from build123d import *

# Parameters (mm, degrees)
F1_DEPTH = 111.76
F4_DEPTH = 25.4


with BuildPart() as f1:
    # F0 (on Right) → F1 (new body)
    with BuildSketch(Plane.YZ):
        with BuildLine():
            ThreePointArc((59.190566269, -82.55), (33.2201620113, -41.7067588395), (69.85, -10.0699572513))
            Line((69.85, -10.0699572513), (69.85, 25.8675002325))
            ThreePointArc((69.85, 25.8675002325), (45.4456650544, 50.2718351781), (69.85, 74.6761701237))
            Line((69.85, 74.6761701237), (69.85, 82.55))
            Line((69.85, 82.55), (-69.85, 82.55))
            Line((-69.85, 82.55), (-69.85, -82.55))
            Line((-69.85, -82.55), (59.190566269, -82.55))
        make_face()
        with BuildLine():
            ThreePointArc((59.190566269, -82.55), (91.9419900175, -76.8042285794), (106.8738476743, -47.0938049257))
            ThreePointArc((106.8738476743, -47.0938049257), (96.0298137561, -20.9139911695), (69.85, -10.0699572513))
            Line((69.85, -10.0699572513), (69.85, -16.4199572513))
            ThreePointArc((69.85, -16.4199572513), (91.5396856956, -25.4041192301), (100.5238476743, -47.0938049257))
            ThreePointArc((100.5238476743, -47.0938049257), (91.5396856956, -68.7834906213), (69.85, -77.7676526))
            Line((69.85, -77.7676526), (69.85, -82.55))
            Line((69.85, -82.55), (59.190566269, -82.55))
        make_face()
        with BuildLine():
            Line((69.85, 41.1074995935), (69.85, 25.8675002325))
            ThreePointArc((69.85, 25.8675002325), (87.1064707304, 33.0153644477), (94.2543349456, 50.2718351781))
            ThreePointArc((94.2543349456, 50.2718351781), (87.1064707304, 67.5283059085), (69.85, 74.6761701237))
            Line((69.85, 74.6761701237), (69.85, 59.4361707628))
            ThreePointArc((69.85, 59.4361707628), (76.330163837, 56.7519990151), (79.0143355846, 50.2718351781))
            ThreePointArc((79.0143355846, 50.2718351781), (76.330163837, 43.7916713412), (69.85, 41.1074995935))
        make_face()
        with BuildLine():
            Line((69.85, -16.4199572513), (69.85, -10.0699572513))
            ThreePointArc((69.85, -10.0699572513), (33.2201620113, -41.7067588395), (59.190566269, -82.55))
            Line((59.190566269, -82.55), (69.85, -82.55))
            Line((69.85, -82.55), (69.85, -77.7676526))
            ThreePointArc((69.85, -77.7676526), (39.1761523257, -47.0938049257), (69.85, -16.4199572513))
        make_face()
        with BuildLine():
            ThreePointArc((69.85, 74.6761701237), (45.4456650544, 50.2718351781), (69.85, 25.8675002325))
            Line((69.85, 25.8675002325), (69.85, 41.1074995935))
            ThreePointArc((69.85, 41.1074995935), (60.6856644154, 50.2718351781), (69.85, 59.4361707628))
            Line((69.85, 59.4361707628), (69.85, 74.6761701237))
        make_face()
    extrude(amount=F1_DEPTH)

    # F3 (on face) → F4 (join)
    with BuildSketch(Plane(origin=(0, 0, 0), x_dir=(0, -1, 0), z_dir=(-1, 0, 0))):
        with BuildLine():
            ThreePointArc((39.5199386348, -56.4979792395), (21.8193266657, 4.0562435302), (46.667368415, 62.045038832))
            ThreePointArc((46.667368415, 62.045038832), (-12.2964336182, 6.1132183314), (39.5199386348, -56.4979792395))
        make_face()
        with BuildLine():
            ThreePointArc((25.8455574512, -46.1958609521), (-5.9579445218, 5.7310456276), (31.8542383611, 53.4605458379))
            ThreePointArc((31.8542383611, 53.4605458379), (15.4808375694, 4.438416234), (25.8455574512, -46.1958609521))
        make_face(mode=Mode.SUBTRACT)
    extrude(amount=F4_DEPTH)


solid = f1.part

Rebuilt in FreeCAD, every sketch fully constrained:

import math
import FreeCAD as App
import Part
import Sketcher
from FreeCAD import Vector
Q = App.Units.Quantity

doc = App.newDocument("Part")
body = doc.addObject("PartDesign::Body", "Body")

sketch1 = doc.addObject("Sketcher::SketchObject", "Sketch")
body.addObject(sketch1)
sketch1.AttachmentSupport = (doc.YZ_Plane, [""])
sketch1.MapMode = "FlatFace"
sketch1.addGeometry([
    Part.LineSegment(Vector(70, -10, 0), Vector(70, 26, 0)),
    Part.ArcOfCircle(Part.Circle(Vector(70, 50, 0), Vector(0, 0, 1), 24), math.radians(-90), math.radians(0)),
    Part.ArcOfCircle(Part.Circle(Vector(70, 50, 0), Vector(0, 0, 1), 24), math.radians(0), math.radians(90)),
    Part.LineSegment(Vector(70, 75, 0), Vector(70, 83, 0)),
    Part.LineSegment(Vector(70, 83, 0), Vector(-70, 83, 0)),
    Part.LineSegment(Vector(-70, 83, 0), Vector(-70, -83, 0)),
    Part.LineSegment(Vector(-70, -83, 0), Vector(59, -83, 0)),
    Part.ArcOfCircle(Part.Circle(Vector(70, -47, 0), Vector(0, 0, 1), 37), math.radians(-107), math.radians(0)),
    Part.ArcOfCircle(Part.Circle(Vector(70, -47, 0), Vector(0, 0, 1), 37), math.radians(0), math.radians(90)),
    Part.ArcOfCircle(Part.Circle(Vector(70, -47, 0), Vector(0, 0, 1), 31), math.radians(0), math.radians(90)),
    Part.ArcOfCircle(Part.Circle(Vector(70, -47, 0), Vector(0, 0, 1), 31), math.radians(90), math.radians(360)),
    Part.ArcOfCircle(Part.Circle(Vector(70, 50, 0), Vector(0, 0, 1), 9), math.radians(90), math.radians(270)),
    Part.ArcOfCircle(Part.Circle(Vector(70, 50, 0), Vector(0, 0, 1), 9), math.radians(0), math.radians(90)),
    Part.ArcOfCircle(Part.Circle(Vector(70, 50, 0), Vector(0, 0, 1), 9), math.radians(-90), math.radians(0)),
], False)
sketch1.addConstraint([
    Sketcher.Constraint("Coincident", 0, 2, 1, 1),
    Sketcher.Constraint("Tangent", 1, 2, 2, 1),
    Sketcher.Constraint("Coincident", 2, 2, 3, 1),
    Sketcher.Constraint("Coincident", 3, 2, 4, 1),
    Sketcher.Constraint("Coincident", 4, 2, 5, 1),
    Sketcher.Constraint("Coincident", 5, 2, 6, 1),
    Sketcher.Constraint("Coincident", 6, 2, 7, 1),
    Sketcher.Constraint("Tangent", 7, 2, 8, 1),
    Sketcher.Constraint("Coincident", 8, 2, 0, 1),
    Sketcher.Constraint("Tangent", 9, 1, 10, 2),
    Sketcher.Constraint("Coincident", 10, 1, 9, 2),
    Sketcher.Constraint("Tangent", 11, 1, 12, 2),
    Sketcher.Constraint("Tangent", 12, 1, 13, 2),
    Sketcher.Constraint("Tangent", 13, 1, 11, 2),
    Sketcher.Constraint("Vertical", 0),
    Sketcher.Constraint("Vertical", 3),
    Sketcher.Constraint("Horizontal", 4),
    Sketcher.Constraint("Vertical", 5),
    Sketcher.Constraint("Horizontal", 6),
    Sketcher.Constraint("Coincident", 9, 3, 7, 3),
    Sketcher.Constraint("Coincident", 11, 3, 1, 3),
    Sketcher.Constraint("Equal", 1, 2),
    Sketcher.Constraint("Equal", 7, 8),
    Sketcher.Constraint("Symmetric", 3, 2, 5, 2, -1, 1),
    Sketcher.Constraint("Horizontal", 13, 3, 1, 2),
    Sketcher.Constraint("Horizontal", 10, 3, 7, 2),
    Sketcher.Constraint("Horizontal", 7, 2, 9, 1),
    Sketcher.Constraint("Horizontal", 1, 2, 12, 1),
    Sketcher.Constraint("Vertical", 2, 3, 7, 3),
    Sketcher.Constraint("Vertical", 13, 3, 0, 2),
    Sketcher.Constraint("Vertical", 0, 2, 2, 2),
    Sketcher.Constraint("Vertical", 8, 2, 10, 1),
    Sketcher.Constraint("Vertical", 10, 1, 11, 1),
    Sketcher.Constraint("Vertical", 11, 1, 13, 1),
    Sketcher.Constraint("DistanceX", 4, 2, 4, 1, Q("5.5 in")),
    Sketcher.Constraint("DistanceY", 5, 2, 5, 1, Q("6.5 in")),
    Sketcher.Constraint("DistanceX", 9, 1, 7, 2, Q("0.25 in")),
    Sketcher.Constraint("Radius", 1, 24.404335),
    Sketcher.Constraint("Radius", 7, 37.023848),
    Sketcher.Constraint("Radius", 11, 9.164336),
    Sketcher.Constraint("DistanceY", 3, 1, 3, 2, 7.87383),
    Sketcher.Constraint("DistanceX", 6, 1, 6, 2, 129.040566),
])
pad1 = doc.addObject("PartDesign::Pad", "Pad")
body.addObject(pad1)
pad1.Profile = sketch1
pad1.Length = Q("4.4 in")

sketch2 = doc.addObject("Sketcher::SketchObject", "Sketch001")
body.addObject(sketch2)
sketch2.AttachmentSupport = (doc.YZ_Plane, [""])
sketch2.MapMode = "FlatFace"
sketch2.addGeometry([
    Part.ArcOfCircle(Part.Circle(Vector(-115, -2, 0), Vector(0, 0, 1), 93), math.radians(-36), math.radians(43)),
    Part.ArcOfCircle(Part.Circle(Vector(-47, 3, 0), Vector(0, 0, 1), 60), math.radians(-83), math.radians(90)),
    Part.ArcOfCircle(Part.Circle(Vector(-115, -2, 0), Vector(0, 0, 1), 100), math.radians(-27), math.radians(33)),
    Part.ArcOfCircle(Part.Circle(Vector(-47, 3, 0), Vector(0, 0, 1), 53), math.radians(-66), math.radians(73)),
], False)
sketch2.addConstraint([
    Sketcher.Constraint("Coincident", 0, 1, 1, 1),
    Sketcher.Constraint("Coincident", 1, 2, 0, 2),
    Sketcher.Constraint("Coincident", 2, 1, 3, 1),
    Sketcher.Constraint("Coincident", 3, 2, 2, 2),
    Sketcher.Constraint("Coincident", 2, 3, 0, 3),
    Sketcher.Constraint("Coincident", 3, 3, 1, 3),
    Sketcher.Constraint("Radius", 1, 59.515389),
    Sketcher.Constraint("Radius", 3, 53.165389),
    Sketcher.Constraint("Radius", 0, 93.373357),
    Sketcher.Constraint("Radius", 2, 99.723357),
    Sketcher.Constraint("DistanceY", 0, 3, -1, 1, 1.563402),
    Sketcher.Constraint("DistanceX", 1, 3, 1, 2, 0.443701),
    Sketcher.Constraint("DistanceX", 0, 3, -1, 1, 115.023422),
    Sketcher.Constraint("DistanceX", 1, 3, -1, 1, 47.111069),
])
pad2 = doc.addObject("PartDesign::Pad", "Pad001")
body.addObject(pad2)
pad2.Profile = sketch2
pad2.Length = Q("1 in")
pad2.Reversed = True

doc.recompute()
